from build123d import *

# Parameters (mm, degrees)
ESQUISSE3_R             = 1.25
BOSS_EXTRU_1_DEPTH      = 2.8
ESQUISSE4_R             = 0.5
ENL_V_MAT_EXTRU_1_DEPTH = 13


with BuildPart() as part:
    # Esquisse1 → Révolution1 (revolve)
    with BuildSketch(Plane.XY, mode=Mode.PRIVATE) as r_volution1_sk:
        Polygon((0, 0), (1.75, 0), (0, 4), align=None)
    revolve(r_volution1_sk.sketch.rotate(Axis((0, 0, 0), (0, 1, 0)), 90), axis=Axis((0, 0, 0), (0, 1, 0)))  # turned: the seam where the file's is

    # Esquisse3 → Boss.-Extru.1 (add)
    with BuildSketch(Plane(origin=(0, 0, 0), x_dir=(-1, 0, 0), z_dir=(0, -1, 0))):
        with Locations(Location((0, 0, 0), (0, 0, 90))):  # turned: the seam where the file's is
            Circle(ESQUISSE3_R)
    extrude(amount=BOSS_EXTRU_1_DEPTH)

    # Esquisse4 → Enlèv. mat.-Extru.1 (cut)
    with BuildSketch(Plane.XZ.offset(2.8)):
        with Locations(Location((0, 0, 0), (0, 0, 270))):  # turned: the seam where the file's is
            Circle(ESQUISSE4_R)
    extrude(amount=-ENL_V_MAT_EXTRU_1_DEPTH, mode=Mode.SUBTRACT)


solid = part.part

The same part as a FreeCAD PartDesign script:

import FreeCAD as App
import Part
import Sketcher

V = App.Vector


def add_polygon(sketch, points):
    """Adds a closed chain of lines whose ends are joined by coincident constraints."""
    first, n = sketch.GeometryCount, len(points)
    for a, b in zip(points, points[1:] + points[:1]):
        sketch.addGeometry(Part.LineSegment(App.Vector(*a, 0), App.Vector(*b, 0)), False)
    for i in range(n):
        sketch.addConstraint(Sketcher.Constraint("Coincident", first + i, 2, first + (i + 1) % n, 1))

doc = App.newDocument("Part")
body = doc.addObject("PartDesign::Body", "Body")

# Sketch on XY plane
sketch1 = body.newObject("Sketcher::SketchObject", "Sketch")
sketch1.AttachmentSupport = (doc.getObject("XY_Plane"), [""])
sketch1.MapMode = "FlatFace"
add_polygon(sketch1, [(0, 0), (1.8, 0), (0, 4)])  # lines 0-2
sketch1.addConstraint(Sketcher.Constraint("Horizontal", 0))
sketch1.addConstraint(Sketcher.Constraint("Vertical", 2))
sketch1.addConstraint(Sketcher.Constraint("Coincident", 2, 2, -1, 1))
sketch1.addConstraint(Sketcher.Constraint("DistanceY", 2, 2, 2, 1, 4.0))
sketch1.addConstraint(Sketcher.Constraint("DistanceX", 0, 1, 0, 2, 1.75))
revolution = body.newObject("PartDesign::Revolution", "Revolution")
revolution.Profile = sketch1
revolution.ReferenceAxis = (sketch1, ["V_Axis"])
revolution.Angle = 360

# Sketch on XZ plane
sketch2 = body.newObject("Sketcher::SketchObject", "Sketch001")
sketch2.AttachmentSupport = (doc.getObject("XZ_Plane"), [""])
sketch2.MapMode = "FlatFace"
sketch2.addGeometry(Part.Circle(V(0, 0, 0), V(0, 0, 1), 1.2), False)
sketch2.addConstraint(Sketcher.Constraint("Coincident", 0, 3, -1, 1))
sketch2.addConstraint(Sketcher.Constraint("Diameter", 0, 2.5))
pad1 = body.newObject("PartDesign::Pad", "Pad")
pad1.Profile = sketch2
pad1.Length = 2.8

# Sketch on XZ plane
sketch3 = body.newObject("Sketcher::SketchObject", "Sketch002")
sketch3.AttachmentSupport = (doc.getObject("XZ_Plane"), [""])
sketch3.MapMode = "FlatFace"
sketch3.AttachmentOffset = App.Placement(V(0, 0, 2.8), App.Rotation())
sketch3.addGeometry(Part.Circle(V(0, 0, 0), V(0, 0, 1), 0.5), False)
sketch3.addConstraint(Sketcher.Constraint("Coincident", 0, 3, -1, 1))
sketch3.addConstraint(Sketcher.Constraint("Diameter", 0, 1.0))
pocket1 = body.newObject("PartDesign::Pocket", "Pocket")
pocket1.Profile = sketch3
pocket1.Length = 13

doc.recompute()
